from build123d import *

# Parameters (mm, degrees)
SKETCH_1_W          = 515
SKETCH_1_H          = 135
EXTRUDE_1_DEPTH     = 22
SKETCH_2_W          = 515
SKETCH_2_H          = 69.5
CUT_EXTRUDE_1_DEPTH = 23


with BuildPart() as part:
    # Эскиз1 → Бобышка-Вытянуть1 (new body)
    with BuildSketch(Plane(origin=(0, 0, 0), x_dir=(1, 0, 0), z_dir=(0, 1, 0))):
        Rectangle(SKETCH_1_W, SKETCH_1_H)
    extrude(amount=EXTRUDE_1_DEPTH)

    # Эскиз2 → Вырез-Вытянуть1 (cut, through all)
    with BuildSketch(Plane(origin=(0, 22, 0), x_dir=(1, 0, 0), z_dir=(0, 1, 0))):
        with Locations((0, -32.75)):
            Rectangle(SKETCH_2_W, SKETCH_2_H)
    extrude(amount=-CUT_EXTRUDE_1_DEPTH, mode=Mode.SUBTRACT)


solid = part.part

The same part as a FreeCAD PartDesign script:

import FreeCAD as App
import Part
import Sketcher

V = App.Vector


def add_polygon(sketch, points):
    """Adds a closed chain of lines whose ends are joined by coincident constraints."""
    first, n = sketch.GeometryCount, len(points)
    for a, b in zip(points, points[1:] + points[:1]):
        sketch.addGeometry(Part.LineSegment(App.Vector(*a, 0), App.Vector(*b, 0)), False)
    for i in range(n):
        sketch.addConstraint(Sketcher.Constraint("Coincident", first + i, 2, first + (i + 1) % n, 1))

doc = App.newDocument("Part")
body = doc.addObject("PartDesign::Body", "Body")

# Sketch on XZ plane
sketch1 = doc.addObject("Sketcher::SketchObject", "Sketch")
body.addObject(sketch1)
sketch1.AttachmentSupport = (doc.XZ_Plane, [""])
sketch1.MapMode = "FlatFace"
add_polygon(sketch1, [(-258, -68), (-258, 68), (258, 68), (258, -68)])  # lines 0-3
sketch1.addConstraint(Sketcher.Constraint("Vertical", 0))
sketch1.addConstraint(Sketcher.Constraint("Horizontal", 1))
sketch1.addConstraint(Sketcher.Constraint("Vertical", 2))
sketch1.addConstraint(Sketcher.Constraint("Horizontal", 3))
sketch1.addConstraint(Sketcher.Constraint("Symmetric", 0, 2, 2, 2, -1, 1))
sketch1.addConstraint(Sketcher.Constraint("DistanceX", 1, 1, 1, 2, 515.0))
sketch1.addConstraint(Sketcher.Constraint("DistanceY", 0, 1, 0, 2, 135.0))
pad1 = doc.addObject("PartDesign::Pad", "Pad")
body.addObject(pad1)
pad1.Profile = sketch1
pad1.Length = 22
pad1.Reversed = True

# Sketch on XZ plane
sketch2 = doc.addObject("Sketcher::SketchObject", "Sketch001")
body.addObject(sketch2)
sketch2.AttachmentSupport = (doc.XZ_Plane, [""])
sketch2.MapMode = "FlatFace"
sketch2.AttachmentOffset = App.Placement(V(0, 0, -22), App.Rotation())
add_polygon(sketch2, [(-258, -2), (-258, 68), (258, 68), (258, -2)])  # lines 0-3
sketch2.addConstraint(Sketcher.Constraint("Vertical", 0))
sketch2.addConstraint(Sketcher.Constraint("Horizontal", 1))
sketch2.addConstraint(Sketcher.Constraint("Vertical", 2))
sketch2.addConstraint(Sketcher.Constraint("Horizontal", 3))
sketch2.addConstraint(Sketcher.Constraint("DistanceX", 1, 1, 1, 2, 515.0))
sketch2.addConstraint(Sketcher.Constraint("DistanceY", 0, 1, 0, 2, 69.5))
sketch2.addConstraint(Sketcher.Constraint("DistanceY", 2, 2, -1, 1, 2.0))
sketch2.addConstraint(Sketcher.Constraint("DistanceX", 0, 2, -1, 1, 257.5))
pocket1 = doc.addObject("PartDesign::Pocket", "Pocket")
body.addObject(pocket1)
pocket1.Profile = sketch2
pocket1.Type = "ThroughAll"
pocket1.Reversed = True

doc.recompute()
